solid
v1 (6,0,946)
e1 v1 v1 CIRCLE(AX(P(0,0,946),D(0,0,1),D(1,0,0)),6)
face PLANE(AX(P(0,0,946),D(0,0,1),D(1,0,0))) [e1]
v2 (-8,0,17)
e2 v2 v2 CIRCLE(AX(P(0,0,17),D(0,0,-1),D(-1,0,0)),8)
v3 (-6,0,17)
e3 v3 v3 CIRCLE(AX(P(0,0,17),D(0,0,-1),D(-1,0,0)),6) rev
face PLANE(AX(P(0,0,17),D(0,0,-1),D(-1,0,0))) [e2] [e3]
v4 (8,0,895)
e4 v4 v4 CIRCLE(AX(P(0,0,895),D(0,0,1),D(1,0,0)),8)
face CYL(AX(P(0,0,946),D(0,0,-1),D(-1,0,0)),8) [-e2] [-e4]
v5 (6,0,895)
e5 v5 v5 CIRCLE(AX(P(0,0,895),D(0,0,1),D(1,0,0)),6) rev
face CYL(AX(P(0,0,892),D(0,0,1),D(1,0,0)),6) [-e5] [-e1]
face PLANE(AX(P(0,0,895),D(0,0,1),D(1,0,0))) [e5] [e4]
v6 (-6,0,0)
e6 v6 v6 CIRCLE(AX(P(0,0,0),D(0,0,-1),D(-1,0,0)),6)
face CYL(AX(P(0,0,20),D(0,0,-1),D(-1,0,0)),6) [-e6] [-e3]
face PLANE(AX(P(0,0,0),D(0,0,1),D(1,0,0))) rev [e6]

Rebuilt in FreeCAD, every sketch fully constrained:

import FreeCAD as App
import Part
import Sketcher
from FreeCAD import Vector
Q = App.Units.Quantity

doc = App.newDocument("Part")
body = doc.addObject("PartDesign::Body", "Body")

# Sketch on XY plane
sketch1 = body.newObject("Sketcher::SketchObject", "Sketch")
sketch1.AttachmentSupport = (doc.getObject("XY_Plane"), [""])
sketch1.MapMode = "FlatFace"
sketch1.addGeometry(Part.Circle(Vector(0, 0, 0), Vector(0, 0, 1), 8), False)
sketch1.addConstraint([
    Sketcher.Constraint("Coincident", 0, 3, -1, 1),
    Sketcher.Constraint("Diameter", 0, Q("16 mm")),
])
pad1 = body.newObject("PartDesign::Pad", "Pad")
pad1.Profile = sketch1
pad1.Length = 946

# Sketch on XY plane
sketch2 = body.newObject("Sketcher::SketchObject", "Sketch001")
sketch2.AttachmentSupport = (doc.getObject("XY_Plane"), [""])
sketch2.MapMode = "FlatFace"
sketch2.AttachmentOffset = App.Placement(Vector(0, 0, 946), App.Rotation())
sketch2.addGeometry([
    Part.Circle(Vector(0, 0, 0), Vector(0, 0, 1), 8),
    Part.Circle(Vector(0, 0, 0), Vector(0, 0, 1), 6),
], False)
sketch2.addConstraint([
    Sketcher.Constraint("Coincident", 0, 3, -1, 1),
    Sketcher.Constraint("Coincident", 1, 3, -1, 1),
    Sketcher.Constraint("Diameter", 0, Q("16 mm")),
    Sketcher.Constraint("Diameter", 1, Q("12 mm")),
])
pocket1 = body.newObject("PartDesign::Pocket", "Pocket")
pocket1.Profile = sketch2
pocket1.Length = 54

# Sketch on XY plane
sketch3 = body.newObject("Sketcher::SketchObject", "Sketch002")
sketch3.AttachmentSupport = (doc.getObject("XY_Plane"), [""])
sketch3.MapMode = "FlatFace"
sketch3.addGeometry([
    Part.Circle(Vector(0, 0, 0), Vector(0, 0, 1), 8),
    Part.Circle(Vector(0, 0, 0), Vector(0, 0, 1), 6),
], False)
sketch3.addConstraint([
    Sketcher.Constraint("Coincident", 0, 3, -1, 1),
    Sketcher.Constraint("Coincident", 1, 3, -1, 1),
    Sketcher.Constraint("Diameter", 0, Q("16 mm")),
    Sketcher.Constraint("Diameter", 1, Q("12 mm")),
])
pocket2 = body.newObject("PartDesign::Pocket", "Pocket001")
pocket2.Profile = sketch3
pocket2.Length = 20
pocket2.Reversed = True

# Sketch on XY plane
sketch4 = body.newObject("Sketcher::SketchObject", "Sketch003")
sketch4.AttachmentSupport = (doc.getObject("XY_Plane"), [""])
sketch4.MapMode = "FlatFace"
sketch4.AttachmentOffset = App.Placement(Vector(0, 0, 20), App.Rotation())
sketch4.addGeometry([
    Part.Circle(Vector(0, 0, 0), Vector(0, 0, 1), 8),
    Part.Circle(Vector(0, 0, 0), Vector(0, 0, 1), 6),
], False)
sketch4.addConstraint([
    Sketcher.Constraint("Coincident", 0, 3, -1, 1),
    Sketcher.Constraint("Coincident", 1, 3, -1, 1),
    Sketcher.Constraint("Diameter", 0, Q("16 mm")),
    Sketcher.Constraint("Diameter", 1, Q("12 mm")),
])
pad2 = body.newObject("PartDesign::Pad", "Pad001")
pad2.Profile = sketch4
pad2.Length = 3
pad2.Reversed = True

# Sketch on XY plane
sketch5 = body.newObject("Sketcher::SketchObject", "Sketch004")
sketch5.AttachmentSupport = (doc.getObject("XY_Plane"), [""])
sketch5.MapMode = "FlatFace"
sketch5.AttachmentOffset = App.Placement(Vector(0, 0, 892), App.Rotation())
sketch5.addGeometry([
    Part.Circle(Vector(0, 0, 0), Vector(0, 0, 1), 8),
    Part.Circle(Vector(0, 0, 0), Vector(0, 0, 1), 6),
], False)
sketch5.addConstraint([
    Sketcher.Constraint("Coincident", 0, 3, -1, 1),
    Sketcher.Constraint("Coincident", 1, 3, -1, 1),
    Sketcher.Constraint("Diameter", 0, Q("16 mm")),
    Sketcher.Constraint("Diameter", 1, Q("12 mm")),
])
pad3 = body.newObject("PartDesign::Pad", "Pad002")
pad3.Profile = sketch5
pad3.Length = 3

doc.recompute()
